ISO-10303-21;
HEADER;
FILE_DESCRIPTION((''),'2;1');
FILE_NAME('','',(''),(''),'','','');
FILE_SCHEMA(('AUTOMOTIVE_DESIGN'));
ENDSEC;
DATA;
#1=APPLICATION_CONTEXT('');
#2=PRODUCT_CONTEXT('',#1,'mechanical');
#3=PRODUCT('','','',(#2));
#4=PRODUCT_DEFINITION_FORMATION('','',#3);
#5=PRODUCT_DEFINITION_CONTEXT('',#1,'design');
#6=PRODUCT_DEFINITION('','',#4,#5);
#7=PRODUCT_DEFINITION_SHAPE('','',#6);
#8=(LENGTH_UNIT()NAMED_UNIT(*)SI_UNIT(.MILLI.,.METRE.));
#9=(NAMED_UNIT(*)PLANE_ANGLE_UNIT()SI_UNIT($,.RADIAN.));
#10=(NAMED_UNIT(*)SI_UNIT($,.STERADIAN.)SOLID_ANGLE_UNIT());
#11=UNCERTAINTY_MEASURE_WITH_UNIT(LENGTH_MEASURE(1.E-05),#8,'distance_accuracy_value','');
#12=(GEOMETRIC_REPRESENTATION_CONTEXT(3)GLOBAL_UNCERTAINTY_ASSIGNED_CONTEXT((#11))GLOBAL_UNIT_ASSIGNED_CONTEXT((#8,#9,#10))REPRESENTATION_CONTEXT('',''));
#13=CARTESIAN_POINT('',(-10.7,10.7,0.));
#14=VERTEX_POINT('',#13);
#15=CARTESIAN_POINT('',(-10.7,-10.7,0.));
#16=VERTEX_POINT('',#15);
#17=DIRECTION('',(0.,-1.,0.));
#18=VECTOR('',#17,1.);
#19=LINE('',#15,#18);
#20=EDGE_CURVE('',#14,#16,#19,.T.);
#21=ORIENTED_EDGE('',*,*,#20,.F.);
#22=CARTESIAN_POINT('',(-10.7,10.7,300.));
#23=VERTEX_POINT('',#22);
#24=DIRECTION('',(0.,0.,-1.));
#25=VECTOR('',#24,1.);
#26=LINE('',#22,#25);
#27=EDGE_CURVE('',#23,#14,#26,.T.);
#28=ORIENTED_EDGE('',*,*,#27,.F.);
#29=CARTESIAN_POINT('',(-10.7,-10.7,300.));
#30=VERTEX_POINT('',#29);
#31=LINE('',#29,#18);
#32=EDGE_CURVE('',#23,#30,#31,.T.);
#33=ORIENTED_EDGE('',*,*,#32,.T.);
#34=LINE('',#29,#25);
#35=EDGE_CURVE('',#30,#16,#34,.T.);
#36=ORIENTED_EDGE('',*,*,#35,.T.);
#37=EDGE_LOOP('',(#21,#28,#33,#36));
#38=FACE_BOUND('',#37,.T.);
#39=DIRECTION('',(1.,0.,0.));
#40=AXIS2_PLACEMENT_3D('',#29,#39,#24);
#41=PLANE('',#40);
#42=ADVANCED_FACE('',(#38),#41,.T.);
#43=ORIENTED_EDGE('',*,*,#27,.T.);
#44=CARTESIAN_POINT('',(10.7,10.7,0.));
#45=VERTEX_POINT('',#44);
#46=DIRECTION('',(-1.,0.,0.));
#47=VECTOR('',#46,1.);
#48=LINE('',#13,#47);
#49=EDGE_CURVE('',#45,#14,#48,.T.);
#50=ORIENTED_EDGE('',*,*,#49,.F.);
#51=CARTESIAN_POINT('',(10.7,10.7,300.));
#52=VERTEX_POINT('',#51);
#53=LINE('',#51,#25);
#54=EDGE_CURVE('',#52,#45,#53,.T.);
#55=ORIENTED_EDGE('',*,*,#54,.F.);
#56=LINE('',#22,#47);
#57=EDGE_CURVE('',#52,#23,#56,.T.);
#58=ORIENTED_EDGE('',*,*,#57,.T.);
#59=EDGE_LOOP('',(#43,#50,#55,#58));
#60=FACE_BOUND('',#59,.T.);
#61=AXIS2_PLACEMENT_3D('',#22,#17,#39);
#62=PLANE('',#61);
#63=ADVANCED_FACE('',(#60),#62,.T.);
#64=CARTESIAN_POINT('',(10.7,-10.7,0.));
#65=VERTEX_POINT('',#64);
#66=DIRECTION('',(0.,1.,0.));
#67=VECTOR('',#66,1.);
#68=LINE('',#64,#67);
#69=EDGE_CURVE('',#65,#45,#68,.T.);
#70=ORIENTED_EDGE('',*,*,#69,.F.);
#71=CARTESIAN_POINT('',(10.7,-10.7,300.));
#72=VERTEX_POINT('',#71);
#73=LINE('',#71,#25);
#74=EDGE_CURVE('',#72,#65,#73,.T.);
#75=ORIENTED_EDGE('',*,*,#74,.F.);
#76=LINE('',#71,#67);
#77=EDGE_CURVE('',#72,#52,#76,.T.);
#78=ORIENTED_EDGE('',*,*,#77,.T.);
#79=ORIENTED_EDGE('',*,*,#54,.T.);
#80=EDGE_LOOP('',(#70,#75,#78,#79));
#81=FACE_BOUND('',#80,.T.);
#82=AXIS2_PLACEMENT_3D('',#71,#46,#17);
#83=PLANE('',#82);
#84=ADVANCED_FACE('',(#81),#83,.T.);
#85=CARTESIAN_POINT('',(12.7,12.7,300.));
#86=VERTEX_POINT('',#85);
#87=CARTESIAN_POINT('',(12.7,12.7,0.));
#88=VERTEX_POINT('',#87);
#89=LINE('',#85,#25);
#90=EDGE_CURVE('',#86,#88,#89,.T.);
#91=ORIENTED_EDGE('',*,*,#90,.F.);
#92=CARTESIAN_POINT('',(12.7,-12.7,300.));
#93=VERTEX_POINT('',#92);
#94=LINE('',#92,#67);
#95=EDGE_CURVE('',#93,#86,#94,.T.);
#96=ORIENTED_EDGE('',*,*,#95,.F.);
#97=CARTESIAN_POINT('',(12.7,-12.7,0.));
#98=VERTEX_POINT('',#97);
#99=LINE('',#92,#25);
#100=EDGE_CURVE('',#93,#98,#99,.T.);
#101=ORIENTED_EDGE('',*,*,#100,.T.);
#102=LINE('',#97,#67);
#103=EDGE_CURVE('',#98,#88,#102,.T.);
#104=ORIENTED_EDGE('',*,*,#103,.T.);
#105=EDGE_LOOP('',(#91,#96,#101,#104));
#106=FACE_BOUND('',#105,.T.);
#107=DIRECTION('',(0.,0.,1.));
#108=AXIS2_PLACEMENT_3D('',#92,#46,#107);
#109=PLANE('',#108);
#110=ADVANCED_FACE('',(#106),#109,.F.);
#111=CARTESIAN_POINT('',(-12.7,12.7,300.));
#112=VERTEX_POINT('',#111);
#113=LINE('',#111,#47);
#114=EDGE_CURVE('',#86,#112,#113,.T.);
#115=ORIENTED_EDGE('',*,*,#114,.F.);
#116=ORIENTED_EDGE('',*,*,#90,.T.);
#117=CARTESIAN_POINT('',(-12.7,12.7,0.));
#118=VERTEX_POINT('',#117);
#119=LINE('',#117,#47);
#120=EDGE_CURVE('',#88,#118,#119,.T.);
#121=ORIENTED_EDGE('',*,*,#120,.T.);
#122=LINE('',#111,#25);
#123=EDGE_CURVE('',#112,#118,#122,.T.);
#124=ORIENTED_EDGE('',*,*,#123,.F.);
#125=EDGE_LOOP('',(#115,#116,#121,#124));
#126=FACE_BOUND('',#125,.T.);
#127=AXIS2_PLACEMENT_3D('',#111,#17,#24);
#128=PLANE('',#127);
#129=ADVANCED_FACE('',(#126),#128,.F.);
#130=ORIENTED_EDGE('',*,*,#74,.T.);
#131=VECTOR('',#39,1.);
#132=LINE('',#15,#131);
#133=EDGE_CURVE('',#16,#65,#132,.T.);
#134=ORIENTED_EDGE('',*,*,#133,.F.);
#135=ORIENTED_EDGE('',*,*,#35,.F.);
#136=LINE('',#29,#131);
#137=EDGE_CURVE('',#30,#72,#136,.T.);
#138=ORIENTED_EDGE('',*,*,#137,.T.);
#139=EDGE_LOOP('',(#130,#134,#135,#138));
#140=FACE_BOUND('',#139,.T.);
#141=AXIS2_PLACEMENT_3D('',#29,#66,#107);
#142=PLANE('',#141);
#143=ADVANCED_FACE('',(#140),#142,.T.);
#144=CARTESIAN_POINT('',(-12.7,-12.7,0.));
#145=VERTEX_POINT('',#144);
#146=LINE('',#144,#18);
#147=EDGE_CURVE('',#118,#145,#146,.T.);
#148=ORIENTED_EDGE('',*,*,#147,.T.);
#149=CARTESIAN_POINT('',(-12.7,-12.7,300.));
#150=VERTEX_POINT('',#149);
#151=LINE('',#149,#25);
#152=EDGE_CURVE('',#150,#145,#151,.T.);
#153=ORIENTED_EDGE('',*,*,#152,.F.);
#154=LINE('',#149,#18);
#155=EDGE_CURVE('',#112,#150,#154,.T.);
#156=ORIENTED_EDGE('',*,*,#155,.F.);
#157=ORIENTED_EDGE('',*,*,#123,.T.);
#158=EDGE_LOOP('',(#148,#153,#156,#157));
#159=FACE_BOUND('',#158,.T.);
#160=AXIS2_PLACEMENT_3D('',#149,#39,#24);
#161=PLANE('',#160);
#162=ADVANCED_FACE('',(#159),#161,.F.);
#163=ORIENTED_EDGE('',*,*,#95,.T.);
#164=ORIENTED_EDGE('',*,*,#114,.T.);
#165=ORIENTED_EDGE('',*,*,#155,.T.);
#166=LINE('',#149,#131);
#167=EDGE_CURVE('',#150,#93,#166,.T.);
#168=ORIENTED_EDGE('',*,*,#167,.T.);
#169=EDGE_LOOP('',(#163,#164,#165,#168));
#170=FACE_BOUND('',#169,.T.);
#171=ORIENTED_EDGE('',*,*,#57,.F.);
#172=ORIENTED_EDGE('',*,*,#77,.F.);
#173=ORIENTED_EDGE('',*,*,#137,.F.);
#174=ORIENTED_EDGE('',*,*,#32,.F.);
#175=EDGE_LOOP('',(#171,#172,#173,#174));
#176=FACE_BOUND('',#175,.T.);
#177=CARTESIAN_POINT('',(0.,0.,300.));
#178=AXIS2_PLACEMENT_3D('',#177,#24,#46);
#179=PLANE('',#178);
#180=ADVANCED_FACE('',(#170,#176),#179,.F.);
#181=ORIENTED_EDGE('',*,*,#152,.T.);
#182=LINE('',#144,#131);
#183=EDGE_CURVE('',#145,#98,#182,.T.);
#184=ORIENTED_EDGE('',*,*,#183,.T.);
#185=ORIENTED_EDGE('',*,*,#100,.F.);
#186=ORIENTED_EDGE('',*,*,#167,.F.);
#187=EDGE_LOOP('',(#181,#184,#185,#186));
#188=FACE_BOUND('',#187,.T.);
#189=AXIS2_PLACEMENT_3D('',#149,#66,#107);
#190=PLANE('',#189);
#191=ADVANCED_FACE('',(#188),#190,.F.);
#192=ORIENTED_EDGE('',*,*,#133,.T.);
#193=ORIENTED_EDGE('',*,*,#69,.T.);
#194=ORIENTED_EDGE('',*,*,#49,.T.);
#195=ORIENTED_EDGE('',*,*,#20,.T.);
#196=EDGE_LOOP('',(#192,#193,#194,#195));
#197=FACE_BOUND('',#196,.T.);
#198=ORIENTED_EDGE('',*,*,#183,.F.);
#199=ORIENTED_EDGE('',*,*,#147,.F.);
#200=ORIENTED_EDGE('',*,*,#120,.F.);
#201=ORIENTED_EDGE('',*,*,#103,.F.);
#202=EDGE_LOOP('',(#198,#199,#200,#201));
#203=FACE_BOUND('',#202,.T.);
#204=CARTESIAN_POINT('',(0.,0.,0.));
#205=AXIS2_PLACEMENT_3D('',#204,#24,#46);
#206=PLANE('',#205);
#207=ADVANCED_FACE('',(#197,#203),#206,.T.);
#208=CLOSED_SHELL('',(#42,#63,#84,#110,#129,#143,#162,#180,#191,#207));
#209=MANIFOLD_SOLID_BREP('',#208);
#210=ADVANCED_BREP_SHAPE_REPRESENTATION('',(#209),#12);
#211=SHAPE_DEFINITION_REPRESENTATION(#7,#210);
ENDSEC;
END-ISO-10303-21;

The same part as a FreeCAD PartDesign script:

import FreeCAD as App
import Part
import Sketcher

doc = App.newDocument("Part")
body = doc.addObject("PartDesign::Body", "Body")

# Sketch on XY plane
sketch1 = body.newObject("Sketcher::SketchObject", "Sketch")
sketch1.AttachmentSupport = (doc.getObject("XY_Plane"), [""])
sketch1.MapMode = "FlatFace"
sketch1.addGeometry(Part.LineSegment(App.Vector(-12.7, 12.7, 0), App.Vector(-12.7, -12.7, 0)), False)
sketch1.addGeometry(Part.LineSegment(App.Vector(-12.7, -12.7, 0), App.Vector(12.7, -12.7, 0)), False)
sketch1.addGeometry(Part.LineSegment(App.Vector(12.7, -12.7, 0), App.Vector(12.7, 12.7, 0)), False)
sketch1.addGeometry(Part.LineSegment(App.Vector(12.7, 12.7, 0), App.Vector(-12.7, 12.7, 0)), False)
sketch1.addGeometry(Part.LineSegment(App.Vector(10.7, -10.7, 0), App.Vector(-10.7, -10.7, 0)), False)
sketch1.addGeometry(Part.LineSegment(App.Vector(-10.7, -10.7, 0), App.Vector(-10.7, 10.7, 0)), False)
sketch1.addGeometry(Part.LineSegment(App.Vector(-10.7, 10.7, 0), App.Vector(10.7, 10.7, 0)), False)
sketch1.addGeometry(Part.LineSegment(App.Vector(10.7, 10.7, 0), App.Vector(10.7, -10.7, 0)), False)
sketch1.addConstraint(Sketcher.Constraint("Coincident", 0, 2, 1, 1))
sketch1.addConstraint(Sketcher.Constraint("Coincident", 1, 2, 2, 1))
sketch1.addConstraint(Sketcher.Constraint("Coincident", 2, 2, 3, 1))
sketch1.addConstraint(Sketcher.Constraint("Coincident", 3, 2, 0, 1))
sketch1.addConstraint(Sketcher.Constraint("Coincident", 4, 2, 5, 1))
sketch1.addConstraint(Sketcher.Constraint("Coincident", 5, 2, 6, 1))
sketch1.addConstraint(Sketcher.Constraint("Coincident", 6, 2, 7, 1))
sketch1.addConstraint(Sketcher.Constraint("Coincident", 7, 2, 4, 1))
sketch1.addConstraint(Sketcher.Constraint("Vertical", 0))
sketch1.addConstraint(Sketcher.Constraint("Horizontal", 1))
sketch1.addConstraint(Sketcher.Constraint("Vertical", 2))
sketch1.addConstraint(Sketcher.Constraint("Horizontal", 3))
sketch1.addConstraint(Sketcher.Constraint("Horizontal", 4))
sketch1.addConstraint(Sketcher.Constraint("Vertical", 5))
sketch1.addConstraint(Sketcher.Constraint("Horizontal", 6))
sketch1.addConstraint(Sketcher.Constraint("Vertical", 7))
sketch1.addConstraint(Sketcher.Constraint("Symmetric", 0, 2, 2, 2, -1, 1))
sketch1.addConstraint(Sketcher.Constraint("Symmetric", 4, 2, 6, 2, -1, 1))
sketch1.addConstraint(Sketcher.Constraint("Equal", 3, 0))
sketch1.addConstraint(Sketcher.Constraint("Equal", 6, 5))
sketch1.addConstraint(Sketcher.Constraint("DistanceX", 1, 1, 1, 2, 25.4))
sketch1.addConstraint(Sketcher.Constraint("DistanceX", 4, 2, 4, 1, 21.4))
pad1 = body.newObject("PartDesign::Pad", "Pad")
pad1.Profile = sketch1
pad1.Length = 300

doc.recompute()
